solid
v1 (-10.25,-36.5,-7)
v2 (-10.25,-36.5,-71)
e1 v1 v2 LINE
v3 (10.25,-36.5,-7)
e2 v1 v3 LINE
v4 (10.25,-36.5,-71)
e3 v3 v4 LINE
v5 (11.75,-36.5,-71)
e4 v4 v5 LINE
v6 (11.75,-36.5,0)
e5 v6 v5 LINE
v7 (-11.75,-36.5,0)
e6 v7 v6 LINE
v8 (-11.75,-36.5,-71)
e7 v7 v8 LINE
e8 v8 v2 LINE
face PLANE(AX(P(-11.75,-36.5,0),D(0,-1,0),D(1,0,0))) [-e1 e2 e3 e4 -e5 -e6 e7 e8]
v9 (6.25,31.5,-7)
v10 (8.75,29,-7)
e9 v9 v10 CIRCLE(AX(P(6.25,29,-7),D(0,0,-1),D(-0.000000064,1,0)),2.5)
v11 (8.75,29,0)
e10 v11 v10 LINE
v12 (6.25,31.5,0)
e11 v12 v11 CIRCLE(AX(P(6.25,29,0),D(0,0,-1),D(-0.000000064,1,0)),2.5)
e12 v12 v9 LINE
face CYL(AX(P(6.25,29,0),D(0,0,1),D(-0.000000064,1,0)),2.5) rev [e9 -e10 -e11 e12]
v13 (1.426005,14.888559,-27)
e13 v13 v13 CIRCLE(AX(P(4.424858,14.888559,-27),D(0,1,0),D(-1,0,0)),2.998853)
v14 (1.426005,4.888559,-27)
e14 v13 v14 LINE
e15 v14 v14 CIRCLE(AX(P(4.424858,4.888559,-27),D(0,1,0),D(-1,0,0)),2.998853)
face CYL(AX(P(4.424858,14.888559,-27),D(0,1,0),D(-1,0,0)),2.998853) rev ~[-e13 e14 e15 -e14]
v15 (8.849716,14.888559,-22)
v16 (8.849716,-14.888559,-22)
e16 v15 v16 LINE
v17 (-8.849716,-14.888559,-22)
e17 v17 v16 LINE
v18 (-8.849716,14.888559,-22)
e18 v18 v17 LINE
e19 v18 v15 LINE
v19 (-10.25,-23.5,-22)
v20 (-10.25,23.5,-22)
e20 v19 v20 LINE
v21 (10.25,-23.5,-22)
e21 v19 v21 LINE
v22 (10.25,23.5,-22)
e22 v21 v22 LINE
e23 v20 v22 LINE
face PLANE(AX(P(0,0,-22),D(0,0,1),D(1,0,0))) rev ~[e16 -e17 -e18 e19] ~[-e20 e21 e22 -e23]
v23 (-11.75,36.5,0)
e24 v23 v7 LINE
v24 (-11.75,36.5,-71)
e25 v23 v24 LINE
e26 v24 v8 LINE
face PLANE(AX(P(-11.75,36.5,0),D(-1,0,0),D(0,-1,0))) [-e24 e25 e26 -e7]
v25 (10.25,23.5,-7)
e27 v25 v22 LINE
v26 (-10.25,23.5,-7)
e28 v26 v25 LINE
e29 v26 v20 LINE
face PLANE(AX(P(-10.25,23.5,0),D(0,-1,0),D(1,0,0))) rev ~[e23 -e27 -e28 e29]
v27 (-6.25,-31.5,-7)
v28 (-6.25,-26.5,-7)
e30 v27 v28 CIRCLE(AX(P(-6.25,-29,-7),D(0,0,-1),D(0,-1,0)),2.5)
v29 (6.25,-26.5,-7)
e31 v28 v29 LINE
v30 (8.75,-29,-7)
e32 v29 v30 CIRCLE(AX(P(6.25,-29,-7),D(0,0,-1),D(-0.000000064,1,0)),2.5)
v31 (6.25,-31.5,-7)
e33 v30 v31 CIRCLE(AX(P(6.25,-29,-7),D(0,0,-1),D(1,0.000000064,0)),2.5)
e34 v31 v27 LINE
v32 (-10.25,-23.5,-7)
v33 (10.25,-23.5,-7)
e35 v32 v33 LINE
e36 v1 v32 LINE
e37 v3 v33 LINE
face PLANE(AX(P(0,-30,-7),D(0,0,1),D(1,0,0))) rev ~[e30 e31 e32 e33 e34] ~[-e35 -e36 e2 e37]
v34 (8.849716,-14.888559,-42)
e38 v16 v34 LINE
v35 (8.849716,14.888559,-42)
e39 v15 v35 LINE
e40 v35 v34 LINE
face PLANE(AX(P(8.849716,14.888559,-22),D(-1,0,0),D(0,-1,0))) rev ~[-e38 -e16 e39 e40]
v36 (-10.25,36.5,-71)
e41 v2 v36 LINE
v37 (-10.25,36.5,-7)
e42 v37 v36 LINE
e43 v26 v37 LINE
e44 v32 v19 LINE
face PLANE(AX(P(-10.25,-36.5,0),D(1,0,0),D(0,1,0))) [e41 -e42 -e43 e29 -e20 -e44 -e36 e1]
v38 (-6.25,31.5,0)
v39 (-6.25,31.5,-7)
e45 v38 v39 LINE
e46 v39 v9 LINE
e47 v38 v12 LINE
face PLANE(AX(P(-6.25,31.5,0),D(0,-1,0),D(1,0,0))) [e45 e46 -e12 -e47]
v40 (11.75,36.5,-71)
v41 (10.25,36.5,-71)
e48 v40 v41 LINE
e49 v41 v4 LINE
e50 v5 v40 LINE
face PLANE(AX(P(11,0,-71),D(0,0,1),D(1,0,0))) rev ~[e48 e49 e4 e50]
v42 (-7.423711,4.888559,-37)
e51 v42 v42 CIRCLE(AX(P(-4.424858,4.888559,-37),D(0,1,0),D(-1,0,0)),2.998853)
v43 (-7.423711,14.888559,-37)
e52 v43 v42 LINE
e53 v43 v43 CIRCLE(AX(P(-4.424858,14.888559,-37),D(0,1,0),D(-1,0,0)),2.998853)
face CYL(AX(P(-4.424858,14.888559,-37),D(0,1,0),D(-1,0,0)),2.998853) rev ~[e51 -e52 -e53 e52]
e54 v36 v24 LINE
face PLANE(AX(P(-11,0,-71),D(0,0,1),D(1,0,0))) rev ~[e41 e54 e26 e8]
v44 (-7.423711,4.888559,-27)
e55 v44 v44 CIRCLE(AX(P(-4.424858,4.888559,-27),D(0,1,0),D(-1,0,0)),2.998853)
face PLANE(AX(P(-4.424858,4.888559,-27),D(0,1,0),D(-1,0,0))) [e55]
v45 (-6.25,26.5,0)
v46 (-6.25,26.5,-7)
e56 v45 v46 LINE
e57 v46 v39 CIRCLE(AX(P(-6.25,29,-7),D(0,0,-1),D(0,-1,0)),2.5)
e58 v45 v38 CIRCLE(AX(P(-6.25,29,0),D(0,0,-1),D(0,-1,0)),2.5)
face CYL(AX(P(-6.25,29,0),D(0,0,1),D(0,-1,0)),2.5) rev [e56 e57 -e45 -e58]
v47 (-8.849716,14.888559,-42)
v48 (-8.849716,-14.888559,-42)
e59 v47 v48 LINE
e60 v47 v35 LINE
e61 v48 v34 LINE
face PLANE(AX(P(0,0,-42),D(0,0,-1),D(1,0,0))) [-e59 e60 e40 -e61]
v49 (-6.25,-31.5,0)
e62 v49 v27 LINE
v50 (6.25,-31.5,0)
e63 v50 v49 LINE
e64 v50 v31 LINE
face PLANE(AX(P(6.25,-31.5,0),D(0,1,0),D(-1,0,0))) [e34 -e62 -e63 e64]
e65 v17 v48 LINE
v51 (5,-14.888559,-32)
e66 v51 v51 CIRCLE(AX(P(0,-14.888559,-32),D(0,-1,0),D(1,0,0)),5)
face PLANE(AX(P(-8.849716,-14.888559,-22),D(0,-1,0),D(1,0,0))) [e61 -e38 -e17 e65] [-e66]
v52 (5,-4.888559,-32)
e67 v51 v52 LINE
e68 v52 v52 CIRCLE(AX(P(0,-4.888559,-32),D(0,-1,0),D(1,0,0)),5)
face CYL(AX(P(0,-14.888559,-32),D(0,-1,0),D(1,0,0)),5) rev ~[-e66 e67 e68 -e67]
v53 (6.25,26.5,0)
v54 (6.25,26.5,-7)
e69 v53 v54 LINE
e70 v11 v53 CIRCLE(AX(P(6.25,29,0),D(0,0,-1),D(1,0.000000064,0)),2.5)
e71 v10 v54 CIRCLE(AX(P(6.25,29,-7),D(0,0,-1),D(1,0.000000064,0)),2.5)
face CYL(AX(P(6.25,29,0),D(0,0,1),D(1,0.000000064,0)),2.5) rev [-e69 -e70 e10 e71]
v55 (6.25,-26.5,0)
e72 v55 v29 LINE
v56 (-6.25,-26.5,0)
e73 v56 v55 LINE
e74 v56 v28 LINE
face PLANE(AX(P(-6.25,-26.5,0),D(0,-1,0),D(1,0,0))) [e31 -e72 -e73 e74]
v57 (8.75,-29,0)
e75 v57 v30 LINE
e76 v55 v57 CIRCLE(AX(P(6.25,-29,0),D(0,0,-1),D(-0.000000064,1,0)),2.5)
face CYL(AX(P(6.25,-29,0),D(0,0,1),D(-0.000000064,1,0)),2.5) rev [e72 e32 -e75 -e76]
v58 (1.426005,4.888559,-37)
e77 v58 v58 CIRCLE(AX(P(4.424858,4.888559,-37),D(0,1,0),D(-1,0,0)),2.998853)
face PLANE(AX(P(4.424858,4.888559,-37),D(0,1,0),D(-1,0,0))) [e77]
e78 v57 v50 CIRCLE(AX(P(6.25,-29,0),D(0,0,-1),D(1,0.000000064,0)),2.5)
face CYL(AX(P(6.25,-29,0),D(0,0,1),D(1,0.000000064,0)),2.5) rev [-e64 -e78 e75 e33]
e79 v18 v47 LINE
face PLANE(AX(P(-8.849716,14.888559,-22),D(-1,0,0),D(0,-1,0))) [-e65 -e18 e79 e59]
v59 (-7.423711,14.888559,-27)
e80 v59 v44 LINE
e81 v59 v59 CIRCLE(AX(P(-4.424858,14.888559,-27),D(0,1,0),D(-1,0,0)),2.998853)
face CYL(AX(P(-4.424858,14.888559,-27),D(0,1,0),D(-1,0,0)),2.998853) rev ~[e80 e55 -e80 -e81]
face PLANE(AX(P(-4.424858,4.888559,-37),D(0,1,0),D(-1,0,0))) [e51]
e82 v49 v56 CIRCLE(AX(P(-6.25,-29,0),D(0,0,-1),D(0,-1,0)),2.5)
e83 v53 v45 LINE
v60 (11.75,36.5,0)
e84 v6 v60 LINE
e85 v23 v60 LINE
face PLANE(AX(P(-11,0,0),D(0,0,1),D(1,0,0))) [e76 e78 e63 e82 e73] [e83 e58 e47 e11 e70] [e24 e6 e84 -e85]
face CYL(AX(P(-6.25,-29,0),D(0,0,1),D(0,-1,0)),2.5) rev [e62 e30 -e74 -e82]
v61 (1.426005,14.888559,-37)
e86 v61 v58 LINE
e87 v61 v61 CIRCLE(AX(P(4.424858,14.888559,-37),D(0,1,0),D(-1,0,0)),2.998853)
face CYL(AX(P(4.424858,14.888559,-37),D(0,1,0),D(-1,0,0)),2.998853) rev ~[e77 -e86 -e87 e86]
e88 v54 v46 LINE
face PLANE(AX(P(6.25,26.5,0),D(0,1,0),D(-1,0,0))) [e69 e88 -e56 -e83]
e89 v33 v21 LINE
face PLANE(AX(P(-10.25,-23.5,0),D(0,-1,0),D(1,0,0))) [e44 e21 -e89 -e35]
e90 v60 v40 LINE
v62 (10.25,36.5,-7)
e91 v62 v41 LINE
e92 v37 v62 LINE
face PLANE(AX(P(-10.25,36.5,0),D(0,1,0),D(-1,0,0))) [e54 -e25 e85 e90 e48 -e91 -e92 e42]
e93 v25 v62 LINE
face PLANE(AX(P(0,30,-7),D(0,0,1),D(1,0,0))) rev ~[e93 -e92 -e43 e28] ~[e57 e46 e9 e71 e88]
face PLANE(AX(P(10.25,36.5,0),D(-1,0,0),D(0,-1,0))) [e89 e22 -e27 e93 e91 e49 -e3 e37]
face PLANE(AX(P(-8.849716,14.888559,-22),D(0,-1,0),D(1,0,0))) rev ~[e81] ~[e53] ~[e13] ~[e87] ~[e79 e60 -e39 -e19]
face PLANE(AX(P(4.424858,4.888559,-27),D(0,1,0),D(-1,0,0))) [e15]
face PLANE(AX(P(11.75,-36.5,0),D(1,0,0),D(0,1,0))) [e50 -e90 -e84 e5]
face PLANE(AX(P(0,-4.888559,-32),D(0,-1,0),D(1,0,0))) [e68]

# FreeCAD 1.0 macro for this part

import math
import FreeCAD as App
import Part
import Sketcher
Q = App.Units.Quantity


def add_polygon(sketch, points):
    """Adds a closed chain of lines whose ends are joined by coincident constraints."""
    first, n = sketch.GeometryCount, len(points)
    for a, b in zip(points, points[1:] + points[:1]):
        sketch.addGeometry(Part.LineSegment(App.Vector(*a, 0), App.Vector(*b, 0)), False)
    for i in range(n):
        sketch.addConstraint(Sketcher.Constraint("Coincident", first + i, 2, first + (i + 1) % n, 1))

doc = App.newDocument("Part")
body = doc.addObject("PartDesign::Body", "Body")

# Sketch on XY plane
sketch1 = body.newObject("Sketcher::SketchObject", "Sketch")
sketch1.AttachmentSupport = (doc.getObject("XY_Plane"), [""])
sketch1.MapMode = "FlatFace"
add_polygon(sketch1, [(-10, 24), (-10, -24), (10, -24), (10, 24)])  # lines 0-3
sketch1.addConstraint([
    Sketcher.Constraint("Vertical", 0),
    Sketcher.Constraint("Horizontal", 1),
    Sketcher.Constraint("Vertical", 2),
    Sketcher.Constraint("Horizontal", 3),
    Sketcher.Constraint("Symmetric", 0, 2, 2, 2, -1, 1),
    Sketcher.Constraint("DistanceY", 0, 2, 0, 1, Q("47 mm")),
    Sketcher.Constraint("DistanceX", 1, 1, 1, 2, Q("20.5 mm")),
])
pad1 = body.newObject("PartDesign::Pad", "Pad")
pad1.Profile = sketch1
pad1.Length = 22
pad1.Reversed = True

# Sketch on XY plane
sketch2 = body.newObject("Sketcher::SketchObject", "Sketch001")
sketch2.AttachmentSupport = (doc.getObject("XY_Plane"), [""])
sketch2.MapMode = "FlatFace"
add_polygon(sketch2, [(-10.2, -23.5), (-10.2, -36.5), (10.2, -36.5), (10.2, -23.5)])  # lines 0-3
sketch2.addGeometry(Part.LineSegment(App.Vector(6.2, -31.5, 0), App.Vector(-6.2, -31.5, 0)), False)  # 4
sketch2.addGeometry(Part.ArcOfCircle(Part.Circle(App.Vector(-6.2, -29, 0), App.Vector(0, 0, 1), 2.5), math.radians(90), math.radians(270)), False)  # 5
sketch2.addGeometry(Part.LineSegment(App.Vector(-6.2, -26.5, 0), App.Vector(6.2, -26.5, 0)), False)  # 6
sketch2.addGeometry(Part.ArcOfCircle(Part.Circle(App.Vector(6.3, -29, 0), App.Vector(0, 0, 1), 2.5), math.radians(0), math.radians(90)), False)  # 7
sketch2.addGeometry(Part.ArcOfCircle(Part.Circle(App.Vector(6.3, -29, 0), App.Vector(0, 0, 1), 2.5), math.radians(-90), math.radians(0)), False)  # 8
add_polygon(sketch2, [(-10.2, 36.5), (-10.2, 23.5), (10.2, 23.5), (10.2, 36.5)])  # lines 9-12
sketch2.addGeometry(Part.LineSegment(App.Vector(-6.2, 31.5, 0), App.Vector(6.2, 31.5, 0)), False)  # 13
sketch2.addGeometry(Part.ArcOfCircle(Part.Circle(App.Vector(6.3, 29, 0), App.Vector(0, 0, 1), 2.5), math.radians(0), math.radians(90)), False)  # 14
sketch2.addGeometry(Part.ArcOfCircle(Part.Circle(App.Vector(6.3, 29, 0), App.Vector(0, 0, 1), 2.5), math.radians(-90), math.radians(0)), False)  # 15
sketch2.addGeometry(Part.LineSegment(App.Vector(6.2, 26.5, 0), App.Vector(-6.2, 26.5, 0)), False)  # 16
sketch2.addGeometry(Part.ArcOfCircle(Part.Circle(App.Vector(-6.2, 29, 0), App.Vector(0, 0, 1), 2.5), math.radians(90), math.radians(270)), False)  # 17
sketch2.addConstraint([
    Sketcher.Constraint("Tangent", 4, 2, 5, 2),
    Sketcher.Constraint("Tangent", 5, 1, 6, 1),
    Sketcher.Constraint("Tangent", 6, 2, 7, 2),
    Sketcher.Constraint("Tangent", 7, 1, 8, 2),
    Sketcher.Constraint("Tangent", 8, 1, 4, 1),
    Sketcher.Constraint("Tangent", 13, 2, 14, 2),
    Sketcher.Constraint("Tangent", 14, 1, 15, 2),
    Sketcher.Constraint("Tangent", 15, 1, 16, 1),
    Sketcher.Constraint("Tangent", 16, 2, 17, 2),
    Sketcher.Constraint("Tangent", 17, 1, 13, 1),
    Sketcher.Constraint("Vertical", 0),
    Sketcher.Constraint("Horizontal", 1),
    Sketcher.Constraint("Vertical", 2),
    Sketcher.Constraint("Horizontal", 3),
    Sketcher.Constraint("Horizontal", 4),
    Sketcher.Constraint("Horizontal", 6),
    Sketcher.Constraint("Vertical", 9),
    Sketcher.Constraint("Horizontal", 10),
    Sketcher.Constraint("Vertical", 11),
    Sketcher.Constraint("Horizontal", 12),
    Sketcher.Constraint("Horizontal", 13),
    Sketcher.Constraint("Horizontal", 16),
    Sketcher.Constraint("Equal", 5, 7),
    Sketcher.Constraint("Equal", 8, 14),
    Sketcher.Constraint("Equal", 14, 15),
    Sketcher.Constraint("Symmetric", 5, 3, 14, 3, -1, 1),
    Sketcher.Constraint("Symmetric", 2, 2, 9, 2, -1, 1),
    Sketcher.Constraint("Symmetric", 0, 2, 11, 2, -1, 1),
    Sketcher.Constraint("Symmetric", 7, 1, 14, 1, -1),
    Sketcher.Constraint("Horizontal", 8, 3, 7, 1),
    Sketcher.Constraint("Vertical", 5, 3, 17, 3),
    Sketcher.Constraint("Vertical", 3, 2, 9, 2),
    Sketcher.Constraint("Radius", 5, Q("2.5 mm")),
    Sketcher.Constraint("DistanceY", 0, 2, 0, 1, Q("13 mm")),
    Sketcher.Constraint("DistanceX", 1, 1, 1, 2, Q("20.5 mm")),
    Sketcher.Constraint("DistanceX", 4, 2, 4, 1, Q("12.5 mm")),
    Sketcher.Constraint("DistanceY", 5, 3, -1, 1, Q("29 mm")),
    Sketcher.Constraint("DistanceY", 0, 2, 4, 2, Q("5 mm")),
])
pad2 = body.newObject("PartDesign::Pad", "Pad001")
pad2.Profile = sketch2
pad2.Length = 7
pad2.Reversed = True

# Sketch on XY plane
sketch3 = body.newObject("Sketcher::SketchObject", "Sketch002")
sketch3.AttachmentSupport = (doc.getObject("XY_Plane"), [""])
sketch3.MapMode = "FlatFace"
add_polygon(sketch3, [(-10.2, 36.5), (-11.8, 36.5), (-11.8, -36.5), (-10.2, -36.5)])  # lines 0-3
add_polygon(sketch3, [(11.8, 36.5), (10.2, 36.5), (10.2, -36.5), (11.8, -36.5)])  # lines 4-7
sketch3.addConstraint([
    Sketcher.Constraint("Horizontal", 0),
    Sketcher.Constraint("Vertical", 1),
    Sketcher.Constraint("Horizontal", 2),
    Sketcher.Constraint("Vertical", 3),
    Sketcher.Constraint("Horizontal", 4),
    Sketcher.Constraint("Vertical", 5),
    Sketcher.Constraint("Horizontal", 6),
    Sketcher.Constraint("Vertical", 7),
    Sketcher.Constraint("Symmetric", 2, 2, 4, 2, -1, 1),
    Sketcher.Constraint("Symmetric", 0, 2, 6, 2, -1, 1),
    Sketcher.Constraint("Horizontal", 3, 2, 4, 2),
    Sketcher.Constraint("DistanceY", 1, 2, 1, 1, Q("73 mm")),
    Sketcher.Constraint("DistanceX", 0, 2, 0, 1, Q("1.5 mm")),
    Sketcher.Constraint("DistanceX", 0, 2, 4, 2, Q("22 mm")),
])
pad3 = body.newObject("PartDesign::Pad", "Pad002")
pad3.Profile = sketch3
pad3.Length = 71
pad3.Reversed = True

# Sketch on XY plane
sketch4 = body.newObject("Sketcher::SketchObject", "Sketch003")
sketch4.AttachmentSupport = (doc.getObject("XY_Plane"), [""])
sketch4.MapMode = "FlatFace"
sketch4.AttachmentOffset = App.Placement(App.Vector(0, 0, -22), App.Rotation())
add_polygon(sketch4, [(-9, -15), (-9, 15), (9, 15), (9, -15)])  # lines 0-3
sketch4.addConstraint([
    Sketcher.Constraint("Vertical", 0),
    Sketcher.Constraint("Horizontal", 1),
    Sketcher.Constraint("Vertical", 2),
    Sketcher.Constraint("Horizontal", 3),
    Sketcher.Constraint("Symmetric", 0, 2, 2, 2, -1, 1),
    Sketcher.Constraint("DistanceY", 0, 1, 0, 2, Q("29.777118 mm")),
    Sketcher.Constraint("DistanceX", 1, 1, 1, 2, Q("17.699432 mm")),
])
pad4 = body.newObject("PartDesign::Pad", "Pad003")
pad4.Profile = sketch4
pad4.Length = 20
pad4.Reversed = True

# Sketch on XZ plane
sketch5 = body.newObject("Sketcher::SketchObject", "Sketch004")
sketch5.AttachmentSupport = (doc.getObject("XZ_Plane"), [""])
sketch5.MapMode = "FlatFace"
sketch5.AttachmentOffset = App.Placement(App.Vector(0, 0, 14.888559), App.Rotation())
sketch5.addGeometry(Part.Circle(App.Vector(0, -32, 0), App.Vector(0, 0, 1), 5), False)
sketch5.addConstraint([
    Sketcher.Constraint("PointOnObject", 0, 3, -2),
    Sketcher.Constraint("Diameter", 0, Q("10 mm")),
    Sketcher.Constraint("DistanceY", 0, 3, -1, 1, Q("32 mm")),
])
pocket1 = body.newObject("PartDesign::Pocket", "Pocket")
pocket1.Profile = sketch5
pocket1.Length = 10

# Sketch on XZ plane
sketch6 = body.newObject("Sketcher::SketchObject", "Sketch005")
sketch6.AttachmentSupport = (doc.getObject("XZ_Plane"), [""])
sketch6.MapMode = "FlatFace"
sketch6.AttachmentOffset = App.Placement(App.Vector(0, 0, -14.888559), App.Rotation())
sketch6.addGeometry([
    Part.Circle(App.Vector(-4.4, -27, 0), App.Vector(0, 0, 1), 3),
    Part.Circle(App.Vector(-4.4, -37, 0), App.Vector(0, 0, 1), 3),
    Part.Circle(App.Vector(4.4, -37, 0), App.Vector(0, 0, 1), 3),
    Part.Circle(App.Vector(4.4, -27, 0), App.Vector(0, 0, 1), 3),
], False)
sketch6.addConstraint([
    Sketcher.Constraint("Equal", 0, 1),
    Sketcher.Constraint("Equal", 1, 2),
    Sketcher.Constraint("Equal", 2, 3),
    Sketcher.Constraint("Symmetric", 1, 3, 2, 3, -2),
    Sketcher.Constraint("Symmetric", 0, 3, 3, 3, -2),
    Sketcher.Constraint("Vertical", 0, 3, 1, 3),
    Sketcher.Constraint("DistanceY", 0, 3, -1, 1, Q("27 mm")),
    Sketcher.Constraint("DistanceY", 1, 3, -1, 1, Q("37 mm")),
    Sketcher.Constraint("Diameter", 0, Q("5.997706 mm")),
    Sketcher.Constraint("DistanceX", 0, 3, -1, 1, Q("4.424858 mm")),
])
pocket2 = body.newObject("PartDesign::Pocket", "Pocket001")
pocket2.Profile = sketch6
pocket2.Length = 10
pocket2.Reversed = True

doc.recompute()
